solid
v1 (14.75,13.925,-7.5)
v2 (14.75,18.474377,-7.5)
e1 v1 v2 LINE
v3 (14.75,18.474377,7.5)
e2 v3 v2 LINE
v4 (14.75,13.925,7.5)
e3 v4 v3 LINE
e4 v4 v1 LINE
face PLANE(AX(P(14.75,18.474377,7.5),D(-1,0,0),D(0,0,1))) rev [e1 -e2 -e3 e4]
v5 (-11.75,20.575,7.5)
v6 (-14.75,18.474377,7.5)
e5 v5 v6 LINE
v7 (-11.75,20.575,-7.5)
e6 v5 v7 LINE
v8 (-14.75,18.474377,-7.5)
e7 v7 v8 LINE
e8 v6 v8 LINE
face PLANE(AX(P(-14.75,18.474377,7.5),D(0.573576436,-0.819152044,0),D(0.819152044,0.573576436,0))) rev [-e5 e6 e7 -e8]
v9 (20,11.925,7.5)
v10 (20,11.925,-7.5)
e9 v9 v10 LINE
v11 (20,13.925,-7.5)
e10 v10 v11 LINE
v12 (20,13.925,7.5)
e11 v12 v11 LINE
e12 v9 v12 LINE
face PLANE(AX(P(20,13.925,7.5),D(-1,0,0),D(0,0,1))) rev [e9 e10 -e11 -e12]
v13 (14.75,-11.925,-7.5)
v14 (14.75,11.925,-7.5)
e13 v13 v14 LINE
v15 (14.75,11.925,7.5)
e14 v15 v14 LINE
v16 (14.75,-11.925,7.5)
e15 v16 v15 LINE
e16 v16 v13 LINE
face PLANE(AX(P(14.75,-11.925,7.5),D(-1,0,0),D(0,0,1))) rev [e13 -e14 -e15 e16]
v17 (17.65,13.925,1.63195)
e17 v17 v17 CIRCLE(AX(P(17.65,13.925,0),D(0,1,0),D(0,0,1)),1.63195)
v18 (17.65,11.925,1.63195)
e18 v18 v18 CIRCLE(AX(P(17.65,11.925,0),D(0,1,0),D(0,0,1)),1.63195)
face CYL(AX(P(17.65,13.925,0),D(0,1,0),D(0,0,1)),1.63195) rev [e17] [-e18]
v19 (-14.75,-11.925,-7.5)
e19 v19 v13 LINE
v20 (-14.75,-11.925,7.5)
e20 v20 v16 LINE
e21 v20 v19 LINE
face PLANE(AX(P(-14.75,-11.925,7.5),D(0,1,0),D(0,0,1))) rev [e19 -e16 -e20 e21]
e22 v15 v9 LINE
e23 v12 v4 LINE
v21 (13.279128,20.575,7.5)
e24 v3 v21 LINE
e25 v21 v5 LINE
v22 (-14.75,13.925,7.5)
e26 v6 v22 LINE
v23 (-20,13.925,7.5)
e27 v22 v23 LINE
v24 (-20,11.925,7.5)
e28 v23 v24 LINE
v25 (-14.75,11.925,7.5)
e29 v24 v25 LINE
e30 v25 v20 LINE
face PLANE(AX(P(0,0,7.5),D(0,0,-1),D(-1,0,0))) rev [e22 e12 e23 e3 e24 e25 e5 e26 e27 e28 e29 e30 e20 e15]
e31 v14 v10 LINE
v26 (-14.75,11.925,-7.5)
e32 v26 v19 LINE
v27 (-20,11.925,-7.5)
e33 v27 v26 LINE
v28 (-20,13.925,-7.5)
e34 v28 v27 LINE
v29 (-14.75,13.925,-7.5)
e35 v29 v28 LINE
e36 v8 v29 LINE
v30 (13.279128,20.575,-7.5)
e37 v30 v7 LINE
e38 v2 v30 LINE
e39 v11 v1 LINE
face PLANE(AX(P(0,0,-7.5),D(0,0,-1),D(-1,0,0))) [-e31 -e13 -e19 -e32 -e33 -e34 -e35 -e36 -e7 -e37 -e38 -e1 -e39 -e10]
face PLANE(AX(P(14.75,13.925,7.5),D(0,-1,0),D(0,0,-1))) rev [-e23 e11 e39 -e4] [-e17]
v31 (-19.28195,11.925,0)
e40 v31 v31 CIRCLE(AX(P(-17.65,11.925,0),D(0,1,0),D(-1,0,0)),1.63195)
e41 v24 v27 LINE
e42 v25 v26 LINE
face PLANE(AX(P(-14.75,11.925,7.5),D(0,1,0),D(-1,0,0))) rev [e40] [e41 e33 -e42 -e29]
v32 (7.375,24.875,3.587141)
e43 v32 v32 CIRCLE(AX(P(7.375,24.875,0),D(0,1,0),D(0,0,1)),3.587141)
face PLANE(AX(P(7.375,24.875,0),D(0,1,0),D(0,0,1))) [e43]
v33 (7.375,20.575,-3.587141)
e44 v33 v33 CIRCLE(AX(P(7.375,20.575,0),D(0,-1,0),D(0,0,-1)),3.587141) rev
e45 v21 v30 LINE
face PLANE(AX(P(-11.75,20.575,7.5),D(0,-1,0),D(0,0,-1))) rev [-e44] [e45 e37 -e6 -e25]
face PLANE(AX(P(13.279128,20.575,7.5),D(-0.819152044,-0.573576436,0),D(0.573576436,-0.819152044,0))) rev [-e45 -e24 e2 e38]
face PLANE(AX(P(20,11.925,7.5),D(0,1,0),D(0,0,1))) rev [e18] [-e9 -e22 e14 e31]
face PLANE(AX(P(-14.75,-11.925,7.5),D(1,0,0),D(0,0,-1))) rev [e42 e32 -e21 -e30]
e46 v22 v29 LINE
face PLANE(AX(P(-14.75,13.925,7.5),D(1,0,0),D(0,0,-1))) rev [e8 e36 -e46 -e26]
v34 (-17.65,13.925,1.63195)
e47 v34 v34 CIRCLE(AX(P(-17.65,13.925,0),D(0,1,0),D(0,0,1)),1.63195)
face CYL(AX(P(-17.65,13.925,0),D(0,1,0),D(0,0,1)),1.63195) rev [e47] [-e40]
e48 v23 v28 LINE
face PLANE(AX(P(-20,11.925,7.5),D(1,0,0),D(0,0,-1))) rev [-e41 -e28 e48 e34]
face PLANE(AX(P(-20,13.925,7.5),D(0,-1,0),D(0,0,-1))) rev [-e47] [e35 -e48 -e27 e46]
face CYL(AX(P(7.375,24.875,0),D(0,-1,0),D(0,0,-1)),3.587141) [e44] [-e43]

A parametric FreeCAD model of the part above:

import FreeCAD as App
import Part
import Sketcher
Q = App.Units.Quantity


def add_polygon(sketch, points):
    """Adds a closed chain of lines whose ends are joined by coincident constraints."""
    first, n = sketch.GeometryCount, len(points)
    for a, b in zip(points, points[1:] + points[:1]):
        sketch.addGeometry(Part.LineSegment(App.Vector(*a, 0), App.Vector(*b, 0)), False)
    for i in range(n):
        sketch.addConstraint(Sketcher.Constraint("Coincident", first + i, 2, first + (i + 1) % n, 1))

doc = App.newDocument("Part")
body = doc.addObject("PartDesign::Body", "Body")

sketch1 = doc.addObject("Sketcher::SketchObject", "Sketch")
body.addObject(sketch1)
sketch1.AttachmentSupport = (doc.XY_Plane, [""])
sketch1.MapMode = "FlatFace"
add_polygon(sketch1, [(-20, 11.925), (-14.75, 11.925), (-14.75, -11.925), (14.75, -11.925), (14.75, 11.925), (20, 11.925), (20, 13.925), (14.75, 13.925), (14.75, 18.474377), (13.279128, 20.575), (-11.75, 20.575), (-14.75, 18.474377), (-14.75, 13.925), (-20, 13.925)])
sketch1.addConstraint(Sketcher.Constraint("Horizontal", 0))
sketch1.addConstraint(Sketcher.Constraint("Vertical", 1))
sketch1.addConstraint(Sketcher.Constraint("Horizontal", 2))
sketch1.addConstraint(Sketcher.Constraint("Vertical", 3))
sketch1.addConstraint(Sketcher.Constraint("Horizontal", 4))
sketch1.addConstraint(Sketcher.Constraint("Vertical", 5))
sketch1.addConstraint(Sketcher.Constraint("Horizontal", 6))
sketch1.addConstraint(Sketcher.Constraint("Vertical", 7))
sketch1.addConstraint(Sketcher.Constraint("Horizontal", 9))
sketch1.addConstraint(Sketcher.Constraint("Vertical", 11))
sketch1.addConstraint(Sketcher.Constraint("Horizontal", 12))
sketch1.addConstraint(Sketcher.Constraint("Vertical", 13))
sketch1.addConstraint(Sketcher.Constraint("Symmetric", 0, 2, 2, 2, -1, 1))
sketch1.addConstraint(Sketcher.Constraint("Symmetric", 7, 2, 10, 2, -2))
sketch1.addConstraint(Sketcher.Constraint("Symmetric", 5, 2, 12, 2, -2))
sketch1.addConstraint(Sketcher.Constraint("Perpendicular", 8, 10))
sketch1.addConstraint(Sketcher.Constraint("Horizontal", 0, 2, 3, 2))
sketch1.addConstraint(Sketcher.Constraint("Vertical", 3, 2, 6, 2))
sketch1.addConstraint(Sketcher.Constraint("DistanceY", 5, 1, 5, 2, 2.0))
sketch1.addConstraint(Sketcher.Constraint("Angle", 8, Q("125 deg")))
sketch1.addConstraint(Sketcher.Constraint("DistanceX", 2, 1, 2, 2, 29.5))
sketch1.addConstraint(Sketcher.Constraint("DistanceX", -1, 1, 4, 2, 20.0))
sketch1.addConstraint(Sketcher.Constraint("DistanceX", 0, 2, 9, 2, 3.0))
sketch1.addConstraint(Sketcher.Constraint("DistanceY", 1, 2, 1, 1, 23.85))
sketch1.addConstraint(Sketcher.Constraint("DistanceY", 6, 2, 8, 2, 6.65))
pad1 = doc.addObject("PartDesign::Pad", "Pad")
body.addObject(pad1)
pad1.Profile = sketch1
pad1.Length = 15
pad1.Midplane = True

sketch2 = doc.addObject("Sketcher::SketchObject", "Sketch001")
body.addObject(sketch2)
sketch2.AttachmentSupport = (doc.XZ_Plane, [""])
sketch2.MapMode = "FlatFace"
sketch2.AttachmentOffset = App.Placement(App.Vector(0, 0, -20.575), App.Rotation())
sketch2.addGeometry(Part.Circle(App.Vector(7.375, 0, 0), App.Vector(0, 0, 1), 3.587141), False)
sketch2.addConstraint(Sketcher.Constraint("PointOnObject", 0, 3, -1))
sketch2.addConstraint(Sketcher.Constraint("Diameter", 0, 7.174283))
sketch2.addConstraint(Sketcher.Constraint("DistanceX", -1, 1, 0, 3, 7.375))
pad2 = doc.addObject("PartDesign::Pad", "Pad001")
body.addObject(pad2)
pad2.Profile = sketch2
pad2.Length = 4.3
pad2.Reversed = True

sketch3 = doc.addObject("Sketcher::SketchObject", "Sketch002")
body.addObject(sketch3)
sketch3.AttachmentSupport = (doc.XZ_Plane, [""])
sketch3.MapMode = "FlatFace"
sketch3.AttachmentOffset = App.Placement(App.Vector(0, 0, -13.925), App.Rotation())
sketch3.addGeometry(Part.Circle(App.Vector(-17.65, 0, 0), App.Vector(0, 0, 1), 1.63195), False)
sketch3.addGeometry(Part.Circle(App.Vector(17.65, 0, 0), App.Vector(0, 0, 1), 1.63195), False)
sketch3.addConstraint(Sketcher.Constraint("Equal", 0, 1))
sketch3.addConstraint(Sketcher.Constraint("Symmetric", 0, 3, 1, 3, -1, 1))
sketch3.addConstraint(Sketcher.Constraint("PointOnObject", 0, 3, -1))
sketch3.addConstraint(Sketcher.Constraint("Diameter", 0, 3.2639))
sketch3.addConstraint(Sketcher.Constraint("DistanceX", 0, 3, 1, 3, 35.3))
doc.recompute()
hole = doc.addObject("PartDesign::Hole", "Hole")
body.addObject(hole)
hole.Profile = sketch3
hole.ThreadType = "None"
hole.Diameter = 3.2639
hole.DepthType = "Dimension"
hole.Depth = 5.84
hole.DrillPoint = "Angled"
hole.DrillPointAngle = 118
hole.Reversed = True

doc.recompute()
